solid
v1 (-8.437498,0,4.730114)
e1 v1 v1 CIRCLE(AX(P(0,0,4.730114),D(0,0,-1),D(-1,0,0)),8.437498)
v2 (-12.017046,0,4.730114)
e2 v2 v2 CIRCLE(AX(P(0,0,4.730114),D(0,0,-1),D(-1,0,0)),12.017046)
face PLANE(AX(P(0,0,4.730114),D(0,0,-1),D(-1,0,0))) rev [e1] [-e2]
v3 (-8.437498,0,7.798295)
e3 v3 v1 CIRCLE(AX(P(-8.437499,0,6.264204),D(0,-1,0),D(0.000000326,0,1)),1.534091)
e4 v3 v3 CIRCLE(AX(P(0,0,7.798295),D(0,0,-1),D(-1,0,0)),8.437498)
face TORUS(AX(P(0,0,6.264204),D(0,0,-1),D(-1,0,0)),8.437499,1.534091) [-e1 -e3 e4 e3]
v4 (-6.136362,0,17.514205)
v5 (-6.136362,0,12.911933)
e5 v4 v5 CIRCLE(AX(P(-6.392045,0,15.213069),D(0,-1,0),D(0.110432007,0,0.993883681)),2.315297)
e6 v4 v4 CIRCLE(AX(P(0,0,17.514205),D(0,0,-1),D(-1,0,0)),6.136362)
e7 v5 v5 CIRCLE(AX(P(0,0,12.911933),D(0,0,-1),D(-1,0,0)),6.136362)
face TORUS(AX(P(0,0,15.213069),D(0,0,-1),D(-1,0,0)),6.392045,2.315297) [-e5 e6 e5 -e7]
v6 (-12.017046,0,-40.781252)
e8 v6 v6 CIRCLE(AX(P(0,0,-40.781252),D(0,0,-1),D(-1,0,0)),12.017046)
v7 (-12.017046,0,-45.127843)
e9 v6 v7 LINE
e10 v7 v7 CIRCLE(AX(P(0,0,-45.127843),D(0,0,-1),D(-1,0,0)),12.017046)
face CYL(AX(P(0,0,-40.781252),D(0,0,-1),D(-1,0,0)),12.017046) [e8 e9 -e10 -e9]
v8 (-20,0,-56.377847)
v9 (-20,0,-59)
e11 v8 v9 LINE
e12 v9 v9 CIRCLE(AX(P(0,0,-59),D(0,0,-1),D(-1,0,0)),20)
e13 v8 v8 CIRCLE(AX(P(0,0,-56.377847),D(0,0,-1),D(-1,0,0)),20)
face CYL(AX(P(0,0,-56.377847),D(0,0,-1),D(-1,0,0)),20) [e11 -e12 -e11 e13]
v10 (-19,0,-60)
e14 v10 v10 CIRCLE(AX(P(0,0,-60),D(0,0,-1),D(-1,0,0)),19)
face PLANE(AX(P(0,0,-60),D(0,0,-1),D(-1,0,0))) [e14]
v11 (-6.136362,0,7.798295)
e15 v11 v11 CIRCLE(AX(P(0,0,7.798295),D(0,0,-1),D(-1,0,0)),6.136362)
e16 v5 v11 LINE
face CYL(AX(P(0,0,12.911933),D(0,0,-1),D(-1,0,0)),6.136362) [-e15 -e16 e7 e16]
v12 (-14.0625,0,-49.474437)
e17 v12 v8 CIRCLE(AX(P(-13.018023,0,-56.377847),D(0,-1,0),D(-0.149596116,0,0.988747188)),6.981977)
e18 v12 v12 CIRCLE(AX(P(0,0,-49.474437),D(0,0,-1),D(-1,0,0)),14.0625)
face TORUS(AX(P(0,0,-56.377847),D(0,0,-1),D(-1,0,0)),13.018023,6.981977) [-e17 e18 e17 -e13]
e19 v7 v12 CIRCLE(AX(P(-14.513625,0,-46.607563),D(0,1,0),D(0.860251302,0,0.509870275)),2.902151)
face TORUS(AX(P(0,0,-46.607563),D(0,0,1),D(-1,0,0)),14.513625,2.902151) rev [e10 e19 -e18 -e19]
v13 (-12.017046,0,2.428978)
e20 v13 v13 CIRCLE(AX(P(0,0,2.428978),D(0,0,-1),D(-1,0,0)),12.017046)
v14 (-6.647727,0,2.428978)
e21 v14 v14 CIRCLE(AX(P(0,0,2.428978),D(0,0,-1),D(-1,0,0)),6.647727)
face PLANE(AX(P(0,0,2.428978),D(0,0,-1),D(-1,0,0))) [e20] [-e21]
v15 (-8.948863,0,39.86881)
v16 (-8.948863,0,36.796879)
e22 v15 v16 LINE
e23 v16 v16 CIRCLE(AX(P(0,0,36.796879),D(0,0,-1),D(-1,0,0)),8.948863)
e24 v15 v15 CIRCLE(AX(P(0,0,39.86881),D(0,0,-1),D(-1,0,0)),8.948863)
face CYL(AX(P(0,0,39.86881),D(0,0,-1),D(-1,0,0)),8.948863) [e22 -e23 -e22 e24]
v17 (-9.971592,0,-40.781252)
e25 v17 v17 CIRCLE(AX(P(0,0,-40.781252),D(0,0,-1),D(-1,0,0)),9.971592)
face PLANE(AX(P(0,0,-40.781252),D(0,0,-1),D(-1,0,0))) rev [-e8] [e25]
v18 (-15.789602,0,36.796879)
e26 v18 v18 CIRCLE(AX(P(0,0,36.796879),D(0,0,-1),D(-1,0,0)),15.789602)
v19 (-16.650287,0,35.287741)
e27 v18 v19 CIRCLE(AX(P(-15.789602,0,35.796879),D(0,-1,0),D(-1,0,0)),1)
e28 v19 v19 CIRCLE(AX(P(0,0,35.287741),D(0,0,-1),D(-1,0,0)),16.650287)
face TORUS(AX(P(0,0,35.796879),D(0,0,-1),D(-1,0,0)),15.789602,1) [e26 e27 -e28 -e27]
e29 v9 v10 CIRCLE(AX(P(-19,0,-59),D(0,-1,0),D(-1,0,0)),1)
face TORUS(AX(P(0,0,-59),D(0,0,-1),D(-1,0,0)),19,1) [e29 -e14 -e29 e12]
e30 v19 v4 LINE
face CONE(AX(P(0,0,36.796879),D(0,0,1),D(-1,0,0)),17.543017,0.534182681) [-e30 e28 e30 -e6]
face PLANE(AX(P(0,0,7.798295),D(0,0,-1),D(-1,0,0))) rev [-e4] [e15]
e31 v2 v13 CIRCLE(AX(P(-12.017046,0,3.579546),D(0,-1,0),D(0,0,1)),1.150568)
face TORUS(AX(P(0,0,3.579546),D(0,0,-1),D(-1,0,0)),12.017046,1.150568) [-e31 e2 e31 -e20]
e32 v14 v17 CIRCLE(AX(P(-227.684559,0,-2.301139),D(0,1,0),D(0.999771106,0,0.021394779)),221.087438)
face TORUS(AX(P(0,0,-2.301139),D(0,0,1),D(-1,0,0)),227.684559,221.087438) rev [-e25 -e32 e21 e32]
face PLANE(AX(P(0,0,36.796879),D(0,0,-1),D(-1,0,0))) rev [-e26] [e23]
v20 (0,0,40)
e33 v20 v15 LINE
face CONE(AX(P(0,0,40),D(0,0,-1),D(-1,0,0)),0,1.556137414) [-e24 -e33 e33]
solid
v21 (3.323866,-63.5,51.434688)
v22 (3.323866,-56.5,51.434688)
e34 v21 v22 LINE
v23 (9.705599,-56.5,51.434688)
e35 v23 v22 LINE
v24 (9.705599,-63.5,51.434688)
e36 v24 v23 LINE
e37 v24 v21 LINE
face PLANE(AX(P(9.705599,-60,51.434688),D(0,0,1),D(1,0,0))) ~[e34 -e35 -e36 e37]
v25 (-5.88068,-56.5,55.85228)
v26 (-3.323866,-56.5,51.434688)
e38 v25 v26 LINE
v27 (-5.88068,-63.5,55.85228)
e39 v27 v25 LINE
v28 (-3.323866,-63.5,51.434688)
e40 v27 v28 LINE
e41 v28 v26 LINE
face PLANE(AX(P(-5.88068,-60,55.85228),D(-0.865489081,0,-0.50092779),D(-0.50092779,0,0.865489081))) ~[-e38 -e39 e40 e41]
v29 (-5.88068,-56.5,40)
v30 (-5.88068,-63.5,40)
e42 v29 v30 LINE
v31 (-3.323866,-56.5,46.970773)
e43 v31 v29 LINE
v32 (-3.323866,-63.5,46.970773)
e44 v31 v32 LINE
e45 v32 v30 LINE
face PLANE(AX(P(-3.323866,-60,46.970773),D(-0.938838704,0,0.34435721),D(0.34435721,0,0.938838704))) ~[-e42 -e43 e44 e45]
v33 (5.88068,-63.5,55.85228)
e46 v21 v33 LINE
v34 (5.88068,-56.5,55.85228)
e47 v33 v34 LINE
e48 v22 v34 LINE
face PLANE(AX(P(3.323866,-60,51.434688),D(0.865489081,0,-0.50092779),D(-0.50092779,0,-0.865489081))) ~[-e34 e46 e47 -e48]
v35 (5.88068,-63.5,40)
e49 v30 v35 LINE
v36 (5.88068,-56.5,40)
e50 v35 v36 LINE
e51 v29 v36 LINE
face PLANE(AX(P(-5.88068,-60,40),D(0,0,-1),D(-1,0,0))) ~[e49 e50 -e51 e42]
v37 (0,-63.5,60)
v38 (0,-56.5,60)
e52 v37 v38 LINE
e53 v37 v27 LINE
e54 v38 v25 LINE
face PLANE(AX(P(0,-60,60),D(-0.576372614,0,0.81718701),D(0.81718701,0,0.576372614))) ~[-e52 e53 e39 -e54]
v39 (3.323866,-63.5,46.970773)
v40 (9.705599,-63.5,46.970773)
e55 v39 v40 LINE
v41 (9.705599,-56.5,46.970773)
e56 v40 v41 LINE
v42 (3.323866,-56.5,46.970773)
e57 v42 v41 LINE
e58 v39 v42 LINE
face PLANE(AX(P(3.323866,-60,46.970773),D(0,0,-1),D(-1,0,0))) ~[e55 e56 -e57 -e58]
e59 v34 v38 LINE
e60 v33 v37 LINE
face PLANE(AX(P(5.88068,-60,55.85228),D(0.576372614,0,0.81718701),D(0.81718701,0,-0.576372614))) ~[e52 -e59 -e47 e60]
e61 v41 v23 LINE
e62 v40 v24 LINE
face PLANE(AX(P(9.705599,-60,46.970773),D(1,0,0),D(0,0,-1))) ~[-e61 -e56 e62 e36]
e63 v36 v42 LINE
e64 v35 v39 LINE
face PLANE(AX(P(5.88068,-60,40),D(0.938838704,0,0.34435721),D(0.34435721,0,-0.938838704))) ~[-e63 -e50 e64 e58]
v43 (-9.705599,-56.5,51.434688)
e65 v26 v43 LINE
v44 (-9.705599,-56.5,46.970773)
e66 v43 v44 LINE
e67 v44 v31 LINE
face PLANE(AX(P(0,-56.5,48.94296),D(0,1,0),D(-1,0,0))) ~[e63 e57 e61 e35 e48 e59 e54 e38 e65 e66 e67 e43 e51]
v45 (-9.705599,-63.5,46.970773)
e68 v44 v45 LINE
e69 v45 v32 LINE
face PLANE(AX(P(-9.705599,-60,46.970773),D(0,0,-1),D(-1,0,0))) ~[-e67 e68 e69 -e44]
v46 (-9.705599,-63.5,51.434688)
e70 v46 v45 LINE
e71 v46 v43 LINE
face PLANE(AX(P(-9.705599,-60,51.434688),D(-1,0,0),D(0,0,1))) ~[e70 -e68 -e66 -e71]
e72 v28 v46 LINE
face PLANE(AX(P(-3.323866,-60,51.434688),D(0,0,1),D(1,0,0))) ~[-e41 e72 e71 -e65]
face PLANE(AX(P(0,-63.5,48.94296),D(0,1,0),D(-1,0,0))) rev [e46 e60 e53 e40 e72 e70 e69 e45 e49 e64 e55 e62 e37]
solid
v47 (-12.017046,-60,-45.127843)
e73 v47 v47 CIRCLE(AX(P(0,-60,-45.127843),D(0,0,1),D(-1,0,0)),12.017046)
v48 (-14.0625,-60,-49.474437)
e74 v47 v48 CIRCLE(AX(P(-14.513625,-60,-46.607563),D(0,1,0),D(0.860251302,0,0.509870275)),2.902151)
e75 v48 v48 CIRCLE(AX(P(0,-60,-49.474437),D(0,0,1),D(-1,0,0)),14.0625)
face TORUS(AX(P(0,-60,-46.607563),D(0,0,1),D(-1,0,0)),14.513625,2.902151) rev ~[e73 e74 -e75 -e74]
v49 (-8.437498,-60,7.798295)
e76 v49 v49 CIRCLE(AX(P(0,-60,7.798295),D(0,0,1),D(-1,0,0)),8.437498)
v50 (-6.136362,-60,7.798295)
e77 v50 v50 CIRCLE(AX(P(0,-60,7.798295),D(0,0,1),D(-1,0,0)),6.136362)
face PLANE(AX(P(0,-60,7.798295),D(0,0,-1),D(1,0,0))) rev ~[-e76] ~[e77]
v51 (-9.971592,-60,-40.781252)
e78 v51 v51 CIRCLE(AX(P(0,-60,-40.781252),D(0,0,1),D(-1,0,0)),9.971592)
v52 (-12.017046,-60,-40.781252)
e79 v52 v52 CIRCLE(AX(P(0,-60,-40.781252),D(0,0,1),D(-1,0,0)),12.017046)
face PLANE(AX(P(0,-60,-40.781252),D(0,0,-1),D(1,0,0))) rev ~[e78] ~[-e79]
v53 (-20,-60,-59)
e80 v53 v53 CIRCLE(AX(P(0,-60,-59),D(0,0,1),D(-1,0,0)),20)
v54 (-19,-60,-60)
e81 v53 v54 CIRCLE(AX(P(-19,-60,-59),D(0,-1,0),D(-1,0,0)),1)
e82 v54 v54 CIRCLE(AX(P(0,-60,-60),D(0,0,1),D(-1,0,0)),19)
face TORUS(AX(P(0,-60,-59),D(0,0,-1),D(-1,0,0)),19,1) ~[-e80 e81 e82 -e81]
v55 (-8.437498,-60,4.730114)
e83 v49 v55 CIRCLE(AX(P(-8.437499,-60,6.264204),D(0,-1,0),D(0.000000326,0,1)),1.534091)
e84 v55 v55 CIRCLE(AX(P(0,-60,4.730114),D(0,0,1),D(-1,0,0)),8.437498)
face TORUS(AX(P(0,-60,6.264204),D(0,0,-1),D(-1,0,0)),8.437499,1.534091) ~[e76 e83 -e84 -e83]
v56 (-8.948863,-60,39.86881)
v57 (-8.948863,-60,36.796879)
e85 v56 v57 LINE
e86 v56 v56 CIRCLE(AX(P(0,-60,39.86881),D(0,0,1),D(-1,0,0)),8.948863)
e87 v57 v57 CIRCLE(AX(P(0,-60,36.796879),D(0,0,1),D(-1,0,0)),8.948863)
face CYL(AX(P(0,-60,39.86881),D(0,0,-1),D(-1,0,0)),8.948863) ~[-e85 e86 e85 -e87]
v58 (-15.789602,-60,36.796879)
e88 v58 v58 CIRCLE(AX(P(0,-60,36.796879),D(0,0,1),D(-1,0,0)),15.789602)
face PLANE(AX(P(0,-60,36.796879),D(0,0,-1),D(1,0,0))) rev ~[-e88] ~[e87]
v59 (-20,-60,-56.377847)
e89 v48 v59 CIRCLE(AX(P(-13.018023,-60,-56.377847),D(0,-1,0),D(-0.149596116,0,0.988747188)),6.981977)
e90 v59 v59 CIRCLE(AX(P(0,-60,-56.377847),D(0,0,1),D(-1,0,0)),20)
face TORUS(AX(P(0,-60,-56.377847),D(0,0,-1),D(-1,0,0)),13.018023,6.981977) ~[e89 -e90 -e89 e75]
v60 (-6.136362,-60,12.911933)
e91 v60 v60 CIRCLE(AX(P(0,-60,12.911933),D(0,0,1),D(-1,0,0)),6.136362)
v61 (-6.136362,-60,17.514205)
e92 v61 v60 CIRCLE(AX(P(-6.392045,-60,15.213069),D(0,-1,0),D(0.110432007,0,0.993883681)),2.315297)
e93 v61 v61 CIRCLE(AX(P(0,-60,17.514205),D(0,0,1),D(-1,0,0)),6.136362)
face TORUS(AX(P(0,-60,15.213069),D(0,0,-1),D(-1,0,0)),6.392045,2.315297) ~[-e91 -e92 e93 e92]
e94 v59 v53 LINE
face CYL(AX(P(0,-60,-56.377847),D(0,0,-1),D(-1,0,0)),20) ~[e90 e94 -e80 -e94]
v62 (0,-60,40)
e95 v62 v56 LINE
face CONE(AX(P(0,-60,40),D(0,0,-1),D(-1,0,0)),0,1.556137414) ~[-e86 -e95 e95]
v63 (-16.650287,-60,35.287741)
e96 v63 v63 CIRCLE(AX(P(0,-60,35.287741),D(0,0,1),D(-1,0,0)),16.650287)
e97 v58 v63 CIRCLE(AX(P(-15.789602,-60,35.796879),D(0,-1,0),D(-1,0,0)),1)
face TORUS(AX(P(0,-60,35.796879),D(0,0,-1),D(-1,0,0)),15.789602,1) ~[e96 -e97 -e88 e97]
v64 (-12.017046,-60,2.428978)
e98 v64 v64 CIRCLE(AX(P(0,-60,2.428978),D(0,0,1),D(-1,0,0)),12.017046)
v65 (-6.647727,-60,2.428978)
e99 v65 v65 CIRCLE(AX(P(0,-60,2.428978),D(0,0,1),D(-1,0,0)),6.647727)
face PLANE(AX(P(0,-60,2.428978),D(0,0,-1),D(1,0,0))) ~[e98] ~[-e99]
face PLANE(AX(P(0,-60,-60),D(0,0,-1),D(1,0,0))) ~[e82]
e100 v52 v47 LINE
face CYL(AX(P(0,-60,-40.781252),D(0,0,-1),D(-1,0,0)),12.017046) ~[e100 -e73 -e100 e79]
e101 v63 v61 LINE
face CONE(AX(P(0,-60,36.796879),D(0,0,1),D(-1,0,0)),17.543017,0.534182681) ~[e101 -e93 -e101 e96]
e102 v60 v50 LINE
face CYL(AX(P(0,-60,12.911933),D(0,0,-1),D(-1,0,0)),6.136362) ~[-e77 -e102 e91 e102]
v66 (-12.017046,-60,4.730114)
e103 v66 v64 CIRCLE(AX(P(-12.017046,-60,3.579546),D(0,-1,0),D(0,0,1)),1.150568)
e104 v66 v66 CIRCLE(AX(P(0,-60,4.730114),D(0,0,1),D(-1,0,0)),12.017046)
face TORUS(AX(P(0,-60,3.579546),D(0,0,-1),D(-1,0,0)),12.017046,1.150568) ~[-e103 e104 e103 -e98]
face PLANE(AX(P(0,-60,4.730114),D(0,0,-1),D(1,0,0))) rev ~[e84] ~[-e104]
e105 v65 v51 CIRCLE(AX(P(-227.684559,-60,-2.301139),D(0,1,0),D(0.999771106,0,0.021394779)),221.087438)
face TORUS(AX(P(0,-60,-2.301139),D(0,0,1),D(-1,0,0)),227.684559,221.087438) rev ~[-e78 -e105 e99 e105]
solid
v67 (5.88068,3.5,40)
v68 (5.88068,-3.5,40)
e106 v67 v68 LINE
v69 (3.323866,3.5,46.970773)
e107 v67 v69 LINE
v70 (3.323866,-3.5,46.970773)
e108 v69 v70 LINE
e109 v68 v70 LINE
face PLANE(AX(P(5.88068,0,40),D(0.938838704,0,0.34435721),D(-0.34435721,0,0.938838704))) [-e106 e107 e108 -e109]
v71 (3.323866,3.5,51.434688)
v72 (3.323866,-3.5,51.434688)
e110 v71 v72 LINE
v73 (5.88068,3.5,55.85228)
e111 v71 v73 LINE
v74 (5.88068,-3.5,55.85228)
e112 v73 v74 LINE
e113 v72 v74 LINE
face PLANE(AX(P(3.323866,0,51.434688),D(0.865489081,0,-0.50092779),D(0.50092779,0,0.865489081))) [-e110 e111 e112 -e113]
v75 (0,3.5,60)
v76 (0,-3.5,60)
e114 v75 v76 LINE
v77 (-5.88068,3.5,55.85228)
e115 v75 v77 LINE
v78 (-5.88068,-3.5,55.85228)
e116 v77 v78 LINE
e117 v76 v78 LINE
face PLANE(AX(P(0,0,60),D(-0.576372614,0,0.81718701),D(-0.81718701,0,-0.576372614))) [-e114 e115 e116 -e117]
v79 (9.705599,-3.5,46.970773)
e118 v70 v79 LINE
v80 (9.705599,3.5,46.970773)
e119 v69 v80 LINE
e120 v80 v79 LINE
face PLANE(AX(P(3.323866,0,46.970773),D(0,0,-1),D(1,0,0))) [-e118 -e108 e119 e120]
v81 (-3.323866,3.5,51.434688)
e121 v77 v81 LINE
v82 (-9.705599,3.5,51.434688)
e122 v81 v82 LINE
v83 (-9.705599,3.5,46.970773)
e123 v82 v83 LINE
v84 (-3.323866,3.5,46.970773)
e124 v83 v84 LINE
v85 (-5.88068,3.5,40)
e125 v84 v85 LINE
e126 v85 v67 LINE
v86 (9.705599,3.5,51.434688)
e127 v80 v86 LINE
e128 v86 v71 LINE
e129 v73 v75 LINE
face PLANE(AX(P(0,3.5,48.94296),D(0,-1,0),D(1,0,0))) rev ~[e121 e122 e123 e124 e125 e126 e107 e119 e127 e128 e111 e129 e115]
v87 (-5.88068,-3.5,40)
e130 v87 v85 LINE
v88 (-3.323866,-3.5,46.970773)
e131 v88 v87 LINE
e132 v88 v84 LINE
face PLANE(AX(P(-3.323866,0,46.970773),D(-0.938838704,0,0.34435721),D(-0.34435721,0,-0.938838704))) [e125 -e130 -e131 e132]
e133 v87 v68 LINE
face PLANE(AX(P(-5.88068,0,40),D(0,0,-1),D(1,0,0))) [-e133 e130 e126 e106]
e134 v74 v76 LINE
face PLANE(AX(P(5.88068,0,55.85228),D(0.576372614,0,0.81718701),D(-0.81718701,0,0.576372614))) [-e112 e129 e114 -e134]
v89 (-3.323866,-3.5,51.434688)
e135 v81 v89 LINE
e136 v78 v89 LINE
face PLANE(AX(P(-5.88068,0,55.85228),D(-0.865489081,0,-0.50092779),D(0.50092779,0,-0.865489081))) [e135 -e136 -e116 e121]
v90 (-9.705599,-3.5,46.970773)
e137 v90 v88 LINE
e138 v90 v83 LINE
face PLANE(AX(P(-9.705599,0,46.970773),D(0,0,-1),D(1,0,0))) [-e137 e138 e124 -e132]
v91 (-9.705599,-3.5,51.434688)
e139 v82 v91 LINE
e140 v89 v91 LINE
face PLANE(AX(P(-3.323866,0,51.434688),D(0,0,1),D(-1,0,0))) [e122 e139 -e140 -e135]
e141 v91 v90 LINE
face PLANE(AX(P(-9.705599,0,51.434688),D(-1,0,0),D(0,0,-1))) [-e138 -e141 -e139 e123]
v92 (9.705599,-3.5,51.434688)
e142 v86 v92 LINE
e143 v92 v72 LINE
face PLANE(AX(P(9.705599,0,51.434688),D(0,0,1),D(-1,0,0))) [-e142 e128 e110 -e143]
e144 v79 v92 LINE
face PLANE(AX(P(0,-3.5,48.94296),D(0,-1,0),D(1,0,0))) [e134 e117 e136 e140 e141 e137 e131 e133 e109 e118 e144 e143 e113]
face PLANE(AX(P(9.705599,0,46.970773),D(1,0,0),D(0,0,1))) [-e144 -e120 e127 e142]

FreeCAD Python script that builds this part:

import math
import FreeCAD as App
import Part
import Sketcher

V = App.Vector
Q = App.Units.Quantity


def edges_at(feature, points):
    """Names of the edges that pass closest to the given points."""
    edges = feature.Shape.Edges
    near = lambda p: min(range(len(edges)), key=lambda i: edges[i].distToShape(Part.Vertex(*p))[0])
    return sorted({f"Edge{near(p) + 1}" for p in points})


def add_polygon(sketch, points):
    """Adds a closed chain of lines whose ends are joined by coincident constraints."""
    first, n = sketch.GeometryCount, len(points)
    for a, b in zip(points, points[1:] + points[:1]):
        sketch.addGeometry(Part.LineSegment(App.Vector(*a, 0), App.Vector(*b, 0)), False)
    for i in range(n):
        sketch.addConstraint(Sketcher.Constraint("Coincident", first + i, 2, first + (i + 1) % n, 1))

doc = App.newDocument("Part")
body = doc.addObject("PartDesign::Body", "Body")
body.AllowCompound = True

sketch1 = doc.addObject("Sketcher::SketchObject", "Sketch")
body.addObject(sketch1)
sketch1.AttachmentSupport = (doc.XZ_Plane, [""])
sketch1.MapMode = "FlatFace"
sketch1.addGeometry([
    Part.LineSegment(V(0, -60, 0), V(0, 40, 0)),
    Part.LineSegment(V(0, 40, 0), V(-8.9, 39.9, 0)),
    Part.LineSegment(V(-8.9, 39.9, 0), V(-8.9, 36.8, 0)),
    Part.LineSegment(V(-8.9, 36.8, 0), V(-17.5, 36.8, 0)),
    Part.LineSegment(V(-17.5, 36.8, 0), V(-6.1, 17.5, 0)),
    Part.ArcOfCircle(Part.Circle(V(-6.4, 15.2, 0), V(0, 0, 1), 2.3), math.radians(84), math.radians(276)),
    Part.LineSegment(V(-6.1, 12.9, 0), V(-6.1, 7.8, 0)),
    Part.LineSegment(V(-6.1, 7.8, 0), V(-8.4, 7.8, 0)),
    Part.ArcOfCircle(Part.Circle(V(-8.4, 6.3, 0), V(0, 0, 1), 1.5), math.radians(90), math.radians(270)),
    Part.LineSegment(V(-8.4, 4.7, 0), V(-12, 4.7, 0)),
    Part.ArcOfCircle(Part.Circle(V(-12, 3.6, 0), V(0, 0, 1), 1.2), math.radians(90), math.radians(270)),
    Part.LineSegment(V(-12, 2.4, 0), V(-6.6, 2.4, 0)),
    Part.ArcOfCircle(Part.Circle(V(-227.7, -2.3, 0), V(0, 0, 1), 221.1), math.radians(-10.02), math.radians(1.23)),
    Part.LineSegment(V(-10, -40.8, 0), V(-12, -40.8, 0)),
    Part.LineSegment(V(-12, -40.8, 0), V(-12, -45.1, 0)),
    Part.ArcOfCircle(Part.Circle(V(-14.5, -46.6, 0), V(0, 0, 1), 2.9), math.radians(-81), math.radians(31)),
    Part.ArcOfCircle(Part.Circle(V(-13, -56.4, 0), V(0, 0, 1), 7), math.radians(99), math.radians(180)),
    Part.LineSegment(V(-20, -56.4, 0), V(-20, -60, 0)),
    Part.LineSegment(V(-20, -60, 0), V(0, -60, 0)),
], False)
sketch1.addConstraint([
    Sketcher.Constraint("Coincident", 0, 2, 1, 1),
    Sketcher.Constraint("Coincident", 1, 2, 2, 1),
    Sketcher.Constraint("Coincident", 2, 2, 3, 1),
    Sketcher.Constraint("Coincident", 3, 2, 4, 1),
    Sketcher.Constraint("Coincident", 4, 2, 5, 1),
    Sketcher.Constraint("Coincident", 5, 2, 6, 1),
    Sketcher.Constraint("Coincident", 6, 2, 7, 1),
    Sketcher.Constraint("Tangent", 7, 2, 8, 1),
    Sketcher.Constraint("Tangent", 8, 2, 9, 1),
    Sketcher.Constraint("Tangent", 9, 2, 10, 1),
    Sketcher.Constraint("Tangent", 10, 2, 11, 1),
    Sketcher.Constraint("Coincident", 11, 2, 12, 2),
    Sketcher.Constraint("Coincident", 12, 1, 13, 1),
    Sketcher.Constraint("Coincident", 13, 2, 14, 1),
    Sketcher.Constraint("Coincident", 14, 2, 15, 2),
    Sketcher.Constraint("Coincident", 15, 1, 16, 1),
    Sketcher.Constraint("Tangent", 16, 2, 17, 1),
    Sketcher.Constraint("Coincident", 17, 2, 18, 1),
    Sketcher.Constraint("Coincident", 18, 2, 0, 1),
    Sketcher.Constraint("Vertical", 0),
    Sketcher.Constraint("Vertical", 2),
    Sketcher.Constraint("Horizontal", 3),
    Sketcher.Constraint("Vertical", 6),
    Sketcher.Constraint("Horizontal", 7),
    Sketcher.Constraint("Horizontal", 9),
    Sketcher.Constraint("Horizontal", 11),
    Sketcher.Constraint("Horizontal", 13),
    Sketcher.Constraint("Vertical", 14),
    Sketcher.Constraint("Vertical", 17),
    Sketcher.Constraint("Horizontal", 18),
    Sketcher.Constraint("PointOnObject", 0, 2, -2),
    Sketcher.Constraint("Vertical", 4, 2, 5, 2),
    Sketcher.Constraint("Vertical", 10, 2, 13, 2),
    Sketcher.Constraint("DistanceX", 18, 1, 18, 2, Q("20 mm")),
    Sketcher.Constraint("DistanceY", 0, 1, 0, 2, Q("100 mm")),
    Sketcher.Constraint("DistanceY", -1, 1, 0, 2, Q("40 mm")),
    Sketcher.Constraint("Radius", 8, Q("1.534091 mm")),
    Sketcher.Constraint("Radius", 12, Q("221.087438 mm")),
    Sketcher.Constraint("Radius", 15, Q("2.902151 mm")),
    Sketcher.Constraint("DistanceY", 8, 3, 4, 2, Q("11.250001 mm")),
    Sketcher.Constraint("Radius", 5, Q("2.315297 mm")),
    Sketcher.Constraint("Radius", 10, Q("1.150568 mm")),
    Sketcher.Constraint("Radius", 16, Q("6.981977 mm")),
    Sketcher.Constraint("DistanceX", 10, 3, 5, 3, Q("5.625001 mm")),
    Sketcher.Constraint("DistanceX", 9, 2, 9, 1, Q("3.579548 mm")),
    Sketcher.Constraint("DistanceX", 11, 1, 11, 2, Q("5.369319 mm")),
    Sketcher.Constraint("DistanceY", 2, 2, 2, 1, Q("3.071931 mm")),
    Sketcher.Constraint("DistanceY", 14, 2, 14, 1, Q("4.346591 mm")),
    Sketcher.Constraint("DistanceX", 8, 3, -1, 1, Q("8.437499 mm")),
    Sketcher.Constraint("DistanceX", 15, 1, -1, 1, Q("14.0625 mm")),
    Sketcher.Constraint("DistanceX", 15, 3, 16, 3, Q("1.495601 mm")),
    Sketcher.Constraint("DistanceX", 2, 2, 4, 2, Q("2.812501 mm")),
    Sketcher.Constraint("DistanceY", 12, 1, 10, 3, Q("44.360798 mm")),
    Sketcher.Constraint("DistanceX", 3, 2, 3, 1, Q("8.594154 mm")),
    Sketcher.Constraint("DistanceX", 7, 2, 7, 1, Q("2.301136 mm")),
    Sketcher.Constraint("DistanceX", 13, 2, 13, 1, Q("2.045454 mm")),
    Sketcher.Constraint("DistanceY", 17, 2, 17, 1, Q("3.622153 mm")),
    Sketcher.Constraint("DistanceY", -1, 1, 1, 2, Q("39.86881 mm")),
])
revolution = doc.addObject("PartDesign::Revolution", "Revolution")
body.addObject(revolution)
revolution.Profile = sketch1
revolution.ReferenceAxis = (sketch1, ["V_Axis"])
revolution.Angle = 360

sketch2 = doc.addObject("Sketcher::SketchObject", "Sketch001")
body.addObject(sketch2)
sketch2.AttachmentSupport = (doc.XZ_Plane, [""])
sketch2.MapMode = "FlatFace"
add_polygon(sketch2, [(-5.9, 40), (5.9, 40), (3.3, 47), (9.7, 47), (9.7, 51.4), (3.3, 51.4), (5.9, 55.9), (0, 60), (-5.9, 55.9), (-3.3, 51.4), (-9.7, 51.4), (-9.7, 47), (-3.3, 47)])
sketch2.addConstraint([
    Sketcher.Constraint("Horizontal", 0),
    Sketcher.Constraint("Horizontal", 2),
    Sketcher.Constraint("Vertical", 3),
    Sketcher.Constraint("Horizontal", 4),
    Sketcher.Constraint("Horizontal", 9),
    Sketcher.Constraint("Vertical", 10),
    Sketcher.Constraint("Horizontal", 11),
    Sketcher.Constraint("Symmetric", 5, 2, 7, 2, -2),
    Sketcher.Constraint("Symmetric", 4, 2, 8, 2, -2),
    Sketcher.Constraint("Symmetric", 2, 2, 10, 2, -2),
    Sketcher.Constraint("PointOnObject", 6, 2, -2),
    Sketcher.Constraint("Vertical", 1, 2, 4, 2),
    Sketcher.Constraint("Vertical", 0, 2, 5, 2),
    Sketcher.Constraint("Vertical", 8, 2, 11, 2),
    Sketcher.Constraint("Vertical", 7, 2, 12, 2),
    Sketcher.Constraint("DistanceY", -1, 1, 0, 2, Q("40 mm")),
    Sketcher.Constraint("DistanceY", -1, 1, 6, 2, Q("60 mm")),
    Sketcher.Constraint("DistanceX", 0, 1, 0, 2, Q("11.76136 mm")),
    Sketcher.Constraint("DistanceX", -1, 1, 2, 2, Q("9.705599 mm")),
    Sketcher.Constraint("Distance", 1, Q("7.424889 mm")),
    Sketcher.Constraint("DistanceX", 2, 1, 2, 2, Q("6.381733 mm")),
    Sketcher.Constraint("DistanceY", 3, 1, 3, 2, Q("4.463915 mm")),
    Sketcher.Constraint("DistanceY", -1, 1, 5, 2, Q("55.85228 mm")),
])
pad1 = doc.addObject("PartDesign::Pad", "Pad")
body.addObject(pad1)
pad1.Profile = sketch2
pad1.Length = 7
pad1.Midplane = True
doc.recompute()

fillet = doc.addObject("PartDesign::Fillet", "Fillet")
body.addObject(fillet)
fillet.Base = (pad1, edges_at(pad1, [(17.543, 0, 36.797), (20, 0, -60)]))
fillet.Radius = 1
body2 = doc.addObject("PartDesign::Body", "Body001")
body2.AllowCompound = True
doc.recompute()

mirroring = doc.addObject("Part::Mirroring", "Mirroring")
mirroring.Source = body
mirroring.Base = V(0, -30, 0)
mirroring.Normal = V(0, -1, 0)
body2.BaseFeature = mirroring
doc.recompute()
mirroring.Visibility = False

doc.recompute()
